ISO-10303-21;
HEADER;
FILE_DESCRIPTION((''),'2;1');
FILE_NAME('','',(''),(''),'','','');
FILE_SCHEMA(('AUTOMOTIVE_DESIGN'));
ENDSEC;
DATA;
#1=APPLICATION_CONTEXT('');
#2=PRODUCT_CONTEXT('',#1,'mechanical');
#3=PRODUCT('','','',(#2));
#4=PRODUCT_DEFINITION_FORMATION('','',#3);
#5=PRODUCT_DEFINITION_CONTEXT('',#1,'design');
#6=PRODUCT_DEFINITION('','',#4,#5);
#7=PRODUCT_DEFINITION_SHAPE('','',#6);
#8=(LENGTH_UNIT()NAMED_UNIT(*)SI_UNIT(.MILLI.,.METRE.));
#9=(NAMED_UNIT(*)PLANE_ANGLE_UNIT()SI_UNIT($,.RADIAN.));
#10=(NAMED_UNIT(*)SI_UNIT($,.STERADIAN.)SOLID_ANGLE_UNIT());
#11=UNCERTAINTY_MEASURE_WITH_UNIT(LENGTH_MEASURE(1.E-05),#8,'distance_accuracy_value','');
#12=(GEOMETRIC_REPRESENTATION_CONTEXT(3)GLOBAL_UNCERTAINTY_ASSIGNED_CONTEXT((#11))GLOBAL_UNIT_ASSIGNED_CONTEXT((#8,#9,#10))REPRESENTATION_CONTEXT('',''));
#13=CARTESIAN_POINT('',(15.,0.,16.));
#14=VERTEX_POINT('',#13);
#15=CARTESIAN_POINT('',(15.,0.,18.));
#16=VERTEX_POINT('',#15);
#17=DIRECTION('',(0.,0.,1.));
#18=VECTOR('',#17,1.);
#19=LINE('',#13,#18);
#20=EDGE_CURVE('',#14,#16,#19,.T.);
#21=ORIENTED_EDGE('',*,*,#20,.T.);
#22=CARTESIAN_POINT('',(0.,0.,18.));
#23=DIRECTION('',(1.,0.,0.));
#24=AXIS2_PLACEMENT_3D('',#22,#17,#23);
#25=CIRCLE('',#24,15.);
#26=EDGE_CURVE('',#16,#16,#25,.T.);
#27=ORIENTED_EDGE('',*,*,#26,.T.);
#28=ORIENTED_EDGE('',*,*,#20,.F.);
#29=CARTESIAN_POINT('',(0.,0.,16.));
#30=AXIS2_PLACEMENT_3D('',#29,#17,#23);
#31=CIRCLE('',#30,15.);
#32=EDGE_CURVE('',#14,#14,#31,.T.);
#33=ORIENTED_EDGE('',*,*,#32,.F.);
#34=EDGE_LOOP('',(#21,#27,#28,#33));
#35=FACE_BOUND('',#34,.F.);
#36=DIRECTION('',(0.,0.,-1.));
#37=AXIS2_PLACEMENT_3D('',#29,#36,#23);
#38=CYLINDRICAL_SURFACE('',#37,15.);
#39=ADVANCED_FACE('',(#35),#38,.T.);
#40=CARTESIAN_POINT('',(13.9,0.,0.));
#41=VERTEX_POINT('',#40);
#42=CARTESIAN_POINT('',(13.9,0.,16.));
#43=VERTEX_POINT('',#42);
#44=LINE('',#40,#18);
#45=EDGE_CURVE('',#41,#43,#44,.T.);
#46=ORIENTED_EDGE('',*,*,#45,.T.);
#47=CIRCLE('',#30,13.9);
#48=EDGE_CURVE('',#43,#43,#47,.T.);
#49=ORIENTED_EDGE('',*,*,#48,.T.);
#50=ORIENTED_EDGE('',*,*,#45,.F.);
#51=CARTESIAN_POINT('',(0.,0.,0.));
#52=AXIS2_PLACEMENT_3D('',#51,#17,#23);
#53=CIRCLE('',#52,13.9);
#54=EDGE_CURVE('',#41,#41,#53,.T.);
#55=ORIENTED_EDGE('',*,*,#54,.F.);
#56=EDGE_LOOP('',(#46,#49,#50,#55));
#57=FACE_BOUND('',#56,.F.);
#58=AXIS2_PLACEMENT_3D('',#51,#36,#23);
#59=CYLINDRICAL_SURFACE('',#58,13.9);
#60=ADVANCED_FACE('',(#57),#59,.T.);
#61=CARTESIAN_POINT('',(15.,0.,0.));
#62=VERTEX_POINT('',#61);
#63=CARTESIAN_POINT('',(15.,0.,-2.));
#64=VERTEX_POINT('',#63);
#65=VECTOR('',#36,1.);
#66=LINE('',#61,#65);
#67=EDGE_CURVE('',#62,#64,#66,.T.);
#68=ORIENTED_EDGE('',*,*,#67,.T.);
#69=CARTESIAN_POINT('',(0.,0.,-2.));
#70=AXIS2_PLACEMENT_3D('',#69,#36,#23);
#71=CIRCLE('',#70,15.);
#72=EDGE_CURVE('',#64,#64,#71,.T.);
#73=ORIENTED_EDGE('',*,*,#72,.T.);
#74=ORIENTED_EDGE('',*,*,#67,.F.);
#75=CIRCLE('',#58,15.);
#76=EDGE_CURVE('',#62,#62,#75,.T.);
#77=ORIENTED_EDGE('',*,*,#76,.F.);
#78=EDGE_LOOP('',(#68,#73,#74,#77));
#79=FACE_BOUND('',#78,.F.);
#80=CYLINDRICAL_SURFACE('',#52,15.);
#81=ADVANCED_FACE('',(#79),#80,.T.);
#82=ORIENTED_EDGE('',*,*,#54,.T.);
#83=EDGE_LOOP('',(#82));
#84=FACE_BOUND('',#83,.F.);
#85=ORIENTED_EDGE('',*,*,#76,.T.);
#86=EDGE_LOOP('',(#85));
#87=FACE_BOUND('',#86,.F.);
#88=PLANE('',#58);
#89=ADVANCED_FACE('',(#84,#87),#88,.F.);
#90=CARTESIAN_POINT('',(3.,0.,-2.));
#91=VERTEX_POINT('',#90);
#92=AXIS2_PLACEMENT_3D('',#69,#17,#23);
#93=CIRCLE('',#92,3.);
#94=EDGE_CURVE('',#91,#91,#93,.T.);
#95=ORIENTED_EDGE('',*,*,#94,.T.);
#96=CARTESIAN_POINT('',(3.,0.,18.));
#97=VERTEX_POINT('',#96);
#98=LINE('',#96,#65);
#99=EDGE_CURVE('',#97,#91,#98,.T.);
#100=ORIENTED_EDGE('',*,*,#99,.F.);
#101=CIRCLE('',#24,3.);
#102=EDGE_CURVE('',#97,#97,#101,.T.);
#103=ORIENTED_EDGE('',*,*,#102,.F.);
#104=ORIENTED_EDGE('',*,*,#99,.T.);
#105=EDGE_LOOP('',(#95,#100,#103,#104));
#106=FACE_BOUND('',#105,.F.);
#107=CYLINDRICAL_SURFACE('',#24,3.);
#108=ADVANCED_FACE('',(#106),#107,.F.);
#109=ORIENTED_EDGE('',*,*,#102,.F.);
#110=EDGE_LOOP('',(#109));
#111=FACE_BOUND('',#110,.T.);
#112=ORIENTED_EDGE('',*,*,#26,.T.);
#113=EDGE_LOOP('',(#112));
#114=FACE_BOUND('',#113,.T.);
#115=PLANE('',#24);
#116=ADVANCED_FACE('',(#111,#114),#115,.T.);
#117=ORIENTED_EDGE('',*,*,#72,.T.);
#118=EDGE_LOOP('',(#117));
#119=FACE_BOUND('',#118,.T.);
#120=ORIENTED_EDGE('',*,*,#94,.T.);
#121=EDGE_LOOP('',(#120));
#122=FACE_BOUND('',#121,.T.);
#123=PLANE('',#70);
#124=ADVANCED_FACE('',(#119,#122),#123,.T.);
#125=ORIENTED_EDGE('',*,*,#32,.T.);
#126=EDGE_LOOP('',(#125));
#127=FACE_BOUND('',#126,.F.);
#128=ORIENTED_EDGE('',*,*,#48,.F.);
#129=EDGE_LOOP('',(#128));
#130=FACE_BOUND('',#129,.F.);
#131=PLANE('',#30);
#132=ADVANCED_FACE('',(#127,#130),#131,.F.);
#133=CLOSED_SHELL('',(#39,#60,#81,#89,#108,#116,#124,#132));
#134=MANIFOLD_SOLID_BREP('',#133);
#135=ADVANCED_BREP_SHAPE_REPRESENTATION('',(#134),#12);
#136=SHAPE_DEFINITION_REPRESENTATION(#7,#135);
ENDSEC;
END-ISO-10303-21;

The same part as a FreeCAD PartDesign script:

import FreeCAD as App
import Part
import Sketcher
Q = App.Units.Quantity

doc = App.newDocument("Part")
params = doc.addObject("Spreadsheet::Sheet", "Params")
for row, (alias, value) in enumerate([
    ("sketch1_diameter", "27.8 mm"),
    ("pad1_length", "16 mm"),
    ("sketch2_diameter", "30 mm"),
    ("pad2_length", "2 mm"),
    ("sketch3_diameter", "30 mm"),
    ("pad3_length", "2 mm"),
    ("sketch4_diameter", "6 mm"),
], start=1):
    params.set(f"A{row}", alias)
    params.set(f"B{row}", "=" + value)
    params.setAlias(f"B{row}", alias)

body = doc.addObject("PartDesign::Body", "Body")

sketch1 = body.newObject("Sketcher::SketchObject", "Sketch")
sketch1.AttachmentSupport = (doc.getObject("XY_Plane"), [""])
sketch1.MapMode = "FlatFace"
sketch1.addGeometry(Part.Circle(App.Vector(0, 0, 0), App.Vector(0, 0, 1), 13.9), False)
sketch1.addConstraint([
    Sketcher.Constraint("Coincident", 0, 3, -1, 1),
    Sketcher.Constraint("Diameter", 0, Q("27.8 mm")),
])
sketch1.setExpression("Constraints[1]", "Params.sketch1_diameter")
pad1 = body.newObject("PartDesign::Pad", "Pad")
pad1.Profile = sketch1
pad1.setExpression("Length", "Params.pad1_length")

sketch2 = body.newObject("Sketcher::SketchObject", "Sketch001")
sketch2.AttachmentSupport = (doc.getObject("XY_Plane"), [""])
sketch2.MapMode = "FlatFace"
sketch2.AttachmentOffset = App.Placement(App.Vector(0, 0, 16), App.Rotation())
sketch2.addGeometry(Part.Circle(App.Vector(0, 0, 0), App.Vector(0, 0, 1), 15), False)
sketch2.addConstraint([
    Sketcher.Constraint("Coincident", 0, 3, -1, 1),
    Sketcher.Constraint("Diameter", 0, Q("30 mm")),
])
sketch2.setExpression("Constraints[1]", "Params.sketch2_diameter")
pad2 = body.newObject("PartDesign::Pad", "Pad001")
pad2.Profile = sketch2
pad2.setExpression("Length", "Params.pad2_length")

sketch3 = body.newObject("Sketcher::SketchObject", "Sketch002")
sketch3.AttachmentSupport = (doc.getObject("XY_Plane"), [""])
sketch3.MapMode = "FlatFace"
sketch3.addGeometry(Part.Circle(App.Vector(0, 0, 0), App.Vector(0, 0, 1), 15), False)
sketch3.addConstraint([
    Sketcher.Constraint("Coincident", 0, 3, -1, 1),
    Sketcher.Constraint("Diameter", 0, Q("30 mm")),
])
sketch3.setExpression("Constraints[1]", "Params.sketch3_diameter")
pad3 = body.newObject("PartDesign::Pad", "Pad002")
pad3.Profile = sketch3
pad3.setExpression("Length", "Params.pad3_length")
pad3.Reversed = True

sketch4 = body.newObject("Sketcher::SketchObject", "Sketch003")
sketch4.AttachmentSupport = (doc.getObject("XY_Plane"), [""])
sketch4.MapMode = "FlatFace"
sketch4.AttachmentOffset = App.Placement(App.Vector(0, 0, 18), App.Rotation())
sketch4.addGeometry(Part.Circle(App.Vector(0, 0, 0), App.Vector(0, 0, 1), 3), False)
sketch4.addConstraint([
    Sketcher.Constraint("Coincident", 0, 3, -1, 1),
    Sketcher.Constraint("Diameter", 0, Q("6 mm")),
])
sketch4.setExpression("Constraints[1]", "Params.sketch4_diameter")
pocket1 = body.newObject("PartDesign::Pocket", "Pocket")
pocket1.Profile = sketch4
pocket1.Type = "ThroughAll"

doc.recompute()
